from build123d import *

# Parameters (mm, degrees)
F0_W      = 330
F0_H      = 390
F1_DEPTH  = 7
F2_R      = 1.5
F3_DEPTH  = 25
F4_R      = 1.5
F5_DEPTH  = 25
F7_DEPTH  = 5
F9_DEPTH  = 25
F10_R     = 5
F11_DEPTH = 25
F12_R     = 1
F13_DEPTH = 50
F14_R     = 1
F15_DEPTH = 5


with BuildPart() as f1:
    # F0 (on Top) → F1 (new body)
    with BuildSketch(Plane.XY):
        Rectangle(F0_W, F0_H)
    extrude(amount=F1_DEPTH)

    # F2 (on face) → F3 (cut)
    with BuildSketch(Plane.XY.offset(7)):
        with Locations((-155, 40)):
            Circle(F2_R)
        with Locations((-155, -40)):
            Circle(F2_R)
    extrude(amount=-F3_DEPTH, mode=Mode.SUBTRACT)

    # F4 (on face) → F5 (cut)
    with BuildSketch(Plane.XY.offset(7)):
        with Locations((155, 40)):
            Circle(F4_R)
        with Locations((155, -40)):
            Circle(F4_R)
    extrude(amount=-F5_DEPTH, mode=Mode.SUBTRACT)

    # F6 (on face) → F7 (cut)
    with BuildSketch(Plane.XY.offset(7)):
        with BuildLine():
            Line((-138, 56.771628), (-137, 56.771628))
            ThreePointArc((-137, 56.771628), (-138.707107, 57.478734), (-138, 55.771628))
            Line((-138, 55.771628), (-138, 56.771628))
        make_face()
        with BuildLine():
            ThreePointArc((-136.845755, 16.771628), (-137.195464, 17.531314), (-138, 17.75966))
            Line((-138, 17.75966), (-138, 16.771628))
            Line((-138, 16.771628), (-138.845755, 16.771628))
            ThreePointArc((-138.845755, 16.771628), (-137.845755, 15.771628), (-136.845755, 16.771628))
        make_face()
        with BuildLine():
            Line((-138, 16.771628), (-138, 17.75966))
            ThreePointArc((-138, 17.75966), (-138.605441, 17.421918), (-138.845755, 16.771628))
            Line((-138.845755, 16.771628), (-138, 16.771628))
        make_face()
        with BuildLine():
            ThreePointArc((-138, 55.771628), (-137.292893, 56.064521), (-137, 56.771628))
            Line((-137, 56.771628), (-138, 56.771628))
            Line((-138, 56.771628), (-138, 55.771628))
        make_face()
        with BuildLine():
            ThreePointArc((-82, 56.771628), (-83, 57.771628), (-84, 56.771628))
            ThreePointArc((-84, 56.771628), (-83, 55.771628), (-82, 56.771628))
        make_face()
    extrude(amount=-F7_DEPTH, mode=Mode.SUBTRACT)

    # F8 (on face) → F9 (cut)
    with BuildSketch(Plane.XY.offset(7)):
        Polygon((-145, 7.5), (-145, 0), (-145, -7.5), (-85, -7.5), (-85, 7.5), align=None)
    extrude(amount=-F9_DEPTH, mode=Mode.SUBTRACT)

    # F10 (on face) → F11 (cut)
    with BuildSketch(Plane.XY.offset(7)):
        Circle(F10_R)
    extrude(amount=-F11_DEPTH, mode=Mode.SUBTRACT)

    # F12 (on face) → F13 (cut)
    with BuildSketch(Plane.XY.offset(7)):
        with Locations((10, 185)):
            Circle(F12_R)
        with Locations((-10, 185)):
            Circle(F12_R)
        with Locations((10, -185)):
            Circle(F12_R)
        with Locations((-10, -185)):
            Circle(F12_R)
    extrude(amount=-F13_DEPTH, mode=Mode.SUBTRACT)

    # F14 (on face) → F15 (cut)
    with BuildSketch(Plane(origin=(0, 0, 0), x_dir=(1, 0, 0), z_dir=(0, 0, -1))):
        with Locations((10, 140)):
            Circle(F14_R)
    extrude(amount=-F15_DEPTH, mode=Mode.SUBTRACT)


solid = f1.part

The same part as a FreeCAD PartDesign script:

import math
import FreeCAD as App
import Part
import Sketcher
from FreeCAD import Vector
Q = App.Units.Quantity

doc = App.newDocument("Part")
body = doc.addObject("PartDesign::Body", "Body")

sketch1 = doc.addObject("Sketcher::SketchObject", "Sketch")
body.addObject(sketch1)
sketch1.AttachmentSupport = (doc.XY_Plane, [""])
sketch1.MapMode = "FlatFace"
sketch1.addGeometry([
    Part.LineSegment(Vector(-165, 195, 0), Vector(-165, -195, 0)),
    Part.LineSegment(Vector(-165, -195, 0), Vector(165, -195, 0)),
    Part.LineSegment(Vector(165, -195, 0), Vector(165, 195, 0)),
    Part.LineSegment(Vector(165, 195, 0), Vector(-165, 195, 0)),
], False)
sketch1.addConstraint([
    Sketcher.Constraint("Coincident", 0, 2, 1, 1),
    Sketcher.Constraint("Coincident", 1, 2, 2, 1),
    Sketcher.Constraint("Coincident", 2, 2, 3, 1),
    Sketcher.Constraint("Coincident", 3, 2, 0, 1),
    Sketcher.Constraint("Vertical", 0),
    Sketcher.Constraint("Horizontal", 1),
    Sketcher.Constraint("Vertical", 2),
    Sketcher.Constraint("Horizontal", 3),
    Sketcher.Constraint("Symmetric", 0, 2, 2, 2, -1, 1),
    Sketcher.Constraint("DistanceX", 1, 1, 1, 2, Q("330 mm")),
    Sketcher.Constraint("DistanceY", 0, 2, 0, 1, Q("390 mm")),
])
pad1 = doc.addObject("PartDesign::Pad", "Pad")
body.addObject(pad1)
pad1.Profile = sketch1
pad1.Length = 7

sketch2 = doc.addObject("Sketcher::SketchObject", "Sketch001")
body.addObject(sketch2)
sketch2.AttachmentSupport = (doc.XY_Plane, [""])
sketch2.MapMode = "FlatFace"
sketch2.AttachmentOffset = App.Placement(Vector(0, 0, 7), App.Rotation())
sketch2.addGeometry([
    Part.Circle(Vector(-155, 40, 0), Vector(0, 0, 1), 1.5),
    Part.Circle(Vector(-155, -40, 0), Vector(0, 0, 1), 1.5),
], False)
sketch2.addConstraint([
    Sketcher.Constraint("Equal", 0, 1),
    Sketcher.Constraint("Symmetric", 0, 3, 1, 3, -1),
    Sketcher.Constraint("Diameter", 0, Q("3 mm")),
    Sketcher.Constraint("DistanceX", 0, 3, -1, 1, Q("155 mm")),
    Sketcher.Constraint("DistanceY", -1, 1, 0, 3, Q("40 mm")),
])
pocket1 = doc.addObject("PartDesign::Pocket", "Pocket")
body.addObject(pocket1)
pocket1.Profile = sketch2
pocket1.Length = 25

sketch3 = doc.addObject("Sketcher::SketchObject", "Sketch002")
body.addObject(sketch3)
sketch3.AttachmentSupport = (doc.XY_Plane, [""])
sketch3.MapMode = "FlatFace"
sketch3.AttachmentOffset = App.Placement(Vector(0, 0, 7), App.Rotation())
sketch3.addGeometry([
    Part.Circle(Vector(155, 40, 0), Vector(0, 0, 1), 1.5),
    Part.Circle(Vector(155, -40, 0), Vector(0, 0, 1), 1.5),
], False)
sketch3.addConstraint([
    Sketcher.Constraint("Equal", 0, 1),
    Sketcher.Constraint("Symmetric", 0, 3, 1, 3, -1),
    Sketcher.Constraint("Diameter", 0, Q("3 mm")),
    Sketcher.Constraint("DistanceX", -1, 1, 0, 3, Q("155 mm")),
    Sketcher.Constraint("DistanceY", -1, 1, 0, 3, Q("40 mm")),
])
pocket2 = doc.addObject("PartDesign::Pocket", "Pocket001")
body.addObject(pocket2)
pocket2.Profile = sketch3
pocket2.Length = 25

sketch4 = doc.addObject("Sketcher::SketchObject", "Sketch003")
body.addObject(sketch4)
sketch4.AttachmentSupport = (doc.XY_Plane, [""])
sketch4.MapMode = "FlatFace"
sketch4.AttachmentOffset = App.Placement(Vector(0, 0, 7), App.Rotation())
sketch4.addGeometry([
    Part.ArcOfCircle(Part.Circle(Vector(-138, 56.8, 0), Vector(0, 0, 1), 1), math.radians(0), math.radians(270)),
    Part.ArcOfCircle(Part.Circle(Vector(-138, 56.8, 0), Vector(0, 0, 1), 1), math.radians(-90), math.radians(0)),
    Part.ArcOfCircle(Part.Circle(Vector(-137.8, 16.8, 0), Vector(0, 0, 1), 1), math.radians(0), math.radians(99)),
    Part.ArcOfCircle(Part.Circle(Vector(-137.8, 16.8, 0), Vector(0, 0, 1), 1), math.radians(99), math.radians(180)),
    Part.ArcOfCircle(Part.Circle(Vector(-137.8, 16.8, 0), Vector(0, 0, 1), 1), math.radians(180), math.radians(360)),
    Part.Circle(Vector(-83, 56.8, 0), Vector(0, 0, 1), 1),
], False)
sketch4.addConstraint([
    Sketcher.Constraint("Tangent", 0, 1, 1, 2),
    Sketcher.Constraint("Coincident", 1, 1, 0, 2),
    Sketcher.Constraint("Coincident", 2, 2, 3, 1),
    Sketcher.Constraint("Tangent", 3, 2, 4, 1),
    Sketcher.Constraint("Tangent", 4, 2, 2, 1),
    Sketcher.Constraint("Equal", 1, 2),
    Sketcher.Constraint("Equal", 2, 3),
    Sketcher.Constraint("Equal", 4, 5),
    Sketcher.Constraint("Horizontal", 1, 3, 5, 3),
    Sketcher.Constraint("Horizontal", 5, 3, 0, 1),
    Sketcher.Constraint("Horizontal", 4, 3, 3, 2),
    Sketcher.Constraint("Horizontal", 3, 2, 4, 2),
    Sketcher.Constraint("Vertical", 0, 3, 1, 1),
    Sketcher.Constraint("Vertical", 1, 1, 2, 2),
    Sketcher.Constraint("Diameter", 5, Q("2 mm")),
    Sketcher.Constraint("DistanceX", 0, 3, -1, 1, Q("138 mm")),
    Sketcher.Constraint("DistanceX", 5, 3, -1, 1, Q("83 mm")),
    Sketcher.Constraint("DistanceY", 2, 3, 0, 3, Q("39.999998 mm")),
    Sketcher.Constraint("DistanceY", -1, 1, 2, 3, Q("16.77163 mm")),
    Sketcher.Constraint("DistanceY", -1, 1, 2, 2, Q("17.75966 mm")),
])
pocket3 = doc.addObject("PartDesign::Pocket", "Pocket002")
body.addObject(pocket3)
pocket3.Profile = sketch4
pocket3.Length = 5

sketch5 = doc.addObject("Sketcher::SketchObject", "Sketch004")
body.addObject(sketch5)
sketch5.AttachmentSupport = (doc.XY_Plane, [""])
sketch5.MapMode = "FlatFace"
sketch5.AttachmentOffset = App.Placement(Vector(0, 0, 7), App.Rotation())
sketch5.addGeometry([
    Part.LineSegment(Vector(-145, 8, 0), Vector(-145, -8, 0)),
    Part.LineSegment(Vector(-145, -8, 0), Vector(-85, -8, 0)),
    Part.LineSegment(Vector(-85, -8, 0), Vector(-85, 8, 0)),
    Part.LineSegment(Vector(-85, 8, 0), Vector(-145, 8, 0)),
], False)
sketch5.addConstraint([
    Sketcher.Constraint("Coincident", 0, 2, 1, 1),
    Sketcher.Constraint("Coincident", 1, 2, 2, 1),
    Sketcher.Constraint("Coincident", 2, 2, 3, 1),
    Sketcher.Constraint("Coincident", 3, 2, 0, 1),
    Sketcher.Constraint("Vertical", 0),
    Sketcher.Constraint("Horizontal", 1),
    Sketcher.Constraint("Vertical", 2),
    Sketcher.Constraint("Horizontal", 3),
    Sketcher.Constraint("DistanceX", 1, 1, 1, 2, Q("60 mm")),
    Sketcher.Constraint("DistanceY", 0, 2, 0, 1, Q("15 mm")),
    Sketcher.Constraint("DistanceX", 0, 2, -1, 1, Q("145 mm")),
    Sketcher.Constraint("DistanceY", 0, 2, -1, 1, Q("7.5 mm")),
])
pocket4 = doc.addObject("PartDesign::Pocket", "Pocket003")
body.addObject(pocket4)
pocket4.Profile = sketch5
pocket4.Length = 25

sketch6 = doc.addObject("Sketcher::SketchObject", "Sketch005")
body.addObject(sketch6)
sketch6.AttachmentSupport = (doc.XY_Plane, [""])
sketch6.MapMode = "FlatFace"
sketch6.AttachmentOffset = App.Placement(Vector(0, 0, 7), App.Rotation())
sketch6.addGeometry(Part.Circle(Vector(0, 0, 0), Vector(0, 0, 1), 5), False)
sketch6.addConstraint([
    Sketcher.Constraint("Coincident", 0, 3, -1, 1),
    Sketcher.Constraint("Diameter", 0, Q("10 mm")),
])
pocket5 = doc.addObject("PartDesign::Pocket", "Pocket004")
body.addObject(pocket5)
pocket5.Profile = sketch6
pocket5.Length = 25

sketch7 = doc.addObject("Sketcher::SketchObject", "Sketch006")
body.addObject(sketch7)
sketch7.AttachmentSupport = (doc.XY_Plane, [""])
sketch7.MapMode = "FlatFace"
sketch7.AttachmentOffset = App.Placement(Vector(0, 0, 7), App.Rotation())
sketch7.addGeometry([
    Part.Circle(Vector(10, 185, 0), Vector(0, 0, 1), 1),
    Part.Circle(Vector(-10, 185, 0), Vector(0, 0, 1), 1),
    Part.Circle(Vector(10, -185, 0), Vector(0, 0, 1), 1),
    Part.Circle(Vector(-10, -185, 0), Vector(0, 0, 1), 1),
], False)
sketch7.addConstraint([
    Sketcher.Constraint("Equal", 0, 1),
    Sketcher.Constraint("Equal", 1, 2),
    Sketcher.Constraint("Equal", 2, 3),
    Sketcher.Constraint("Symmetric", 1, 3, 2, 3, -1, 1),
    Sketcher.Constraint("Symmetric", 0, 3, 3, 3, -1, 1),
    Sketcher.Constraint("Symmetric", 0, 3, 1, 3, -2),
    Sketcher.Constraint("Diameter", 0, Q("2 mm")),
    Sketcher.Constraint("DistanceX", -1, 1, 0, 3, Q("10 mm")),
    Sketcher.Constraint("DistanceY", -1, 1, 0, 3, Q("185 mm")),
])
pocket6 = doc.addObject("PartDesign::Pocket", "Pocket005")
body.addObject(pocket6)
pocket6.Profile = sketch7
pocket6.Length = 50

sketch8 = doc.addObject("Sketcher::SketchObject", "Sketch007")
body.addObject(sketch8)
sketch8.AttachmentSupport = (doc.XY_Plane, [""])
sketch8.MapMode = "FlatFace"
sketch8.addGeometry(Part.Circle(Vector(10, -140, 0), Vector(0, 0, 1), 1), False)
sketch8.addConstraint([
    Sketcher.Constraint("Diameter", 0, Q("2 mm")),
    Sketcher.Constraint("DistanceX", -1, 1, 0, 3, Q("10 mm")),
    Sketcher.Constraint("DistanceY", 0, 3, -1, 1, Q("140 mm")),
])
pocket7 = doc.addObject("PartDesign::Pocket", "Pocket006")
body.addObject(pocket7)
pocket7.Profile = sketch8
pocket7.Length = 5
pocket7.Reversed = True

doc.recompute()
